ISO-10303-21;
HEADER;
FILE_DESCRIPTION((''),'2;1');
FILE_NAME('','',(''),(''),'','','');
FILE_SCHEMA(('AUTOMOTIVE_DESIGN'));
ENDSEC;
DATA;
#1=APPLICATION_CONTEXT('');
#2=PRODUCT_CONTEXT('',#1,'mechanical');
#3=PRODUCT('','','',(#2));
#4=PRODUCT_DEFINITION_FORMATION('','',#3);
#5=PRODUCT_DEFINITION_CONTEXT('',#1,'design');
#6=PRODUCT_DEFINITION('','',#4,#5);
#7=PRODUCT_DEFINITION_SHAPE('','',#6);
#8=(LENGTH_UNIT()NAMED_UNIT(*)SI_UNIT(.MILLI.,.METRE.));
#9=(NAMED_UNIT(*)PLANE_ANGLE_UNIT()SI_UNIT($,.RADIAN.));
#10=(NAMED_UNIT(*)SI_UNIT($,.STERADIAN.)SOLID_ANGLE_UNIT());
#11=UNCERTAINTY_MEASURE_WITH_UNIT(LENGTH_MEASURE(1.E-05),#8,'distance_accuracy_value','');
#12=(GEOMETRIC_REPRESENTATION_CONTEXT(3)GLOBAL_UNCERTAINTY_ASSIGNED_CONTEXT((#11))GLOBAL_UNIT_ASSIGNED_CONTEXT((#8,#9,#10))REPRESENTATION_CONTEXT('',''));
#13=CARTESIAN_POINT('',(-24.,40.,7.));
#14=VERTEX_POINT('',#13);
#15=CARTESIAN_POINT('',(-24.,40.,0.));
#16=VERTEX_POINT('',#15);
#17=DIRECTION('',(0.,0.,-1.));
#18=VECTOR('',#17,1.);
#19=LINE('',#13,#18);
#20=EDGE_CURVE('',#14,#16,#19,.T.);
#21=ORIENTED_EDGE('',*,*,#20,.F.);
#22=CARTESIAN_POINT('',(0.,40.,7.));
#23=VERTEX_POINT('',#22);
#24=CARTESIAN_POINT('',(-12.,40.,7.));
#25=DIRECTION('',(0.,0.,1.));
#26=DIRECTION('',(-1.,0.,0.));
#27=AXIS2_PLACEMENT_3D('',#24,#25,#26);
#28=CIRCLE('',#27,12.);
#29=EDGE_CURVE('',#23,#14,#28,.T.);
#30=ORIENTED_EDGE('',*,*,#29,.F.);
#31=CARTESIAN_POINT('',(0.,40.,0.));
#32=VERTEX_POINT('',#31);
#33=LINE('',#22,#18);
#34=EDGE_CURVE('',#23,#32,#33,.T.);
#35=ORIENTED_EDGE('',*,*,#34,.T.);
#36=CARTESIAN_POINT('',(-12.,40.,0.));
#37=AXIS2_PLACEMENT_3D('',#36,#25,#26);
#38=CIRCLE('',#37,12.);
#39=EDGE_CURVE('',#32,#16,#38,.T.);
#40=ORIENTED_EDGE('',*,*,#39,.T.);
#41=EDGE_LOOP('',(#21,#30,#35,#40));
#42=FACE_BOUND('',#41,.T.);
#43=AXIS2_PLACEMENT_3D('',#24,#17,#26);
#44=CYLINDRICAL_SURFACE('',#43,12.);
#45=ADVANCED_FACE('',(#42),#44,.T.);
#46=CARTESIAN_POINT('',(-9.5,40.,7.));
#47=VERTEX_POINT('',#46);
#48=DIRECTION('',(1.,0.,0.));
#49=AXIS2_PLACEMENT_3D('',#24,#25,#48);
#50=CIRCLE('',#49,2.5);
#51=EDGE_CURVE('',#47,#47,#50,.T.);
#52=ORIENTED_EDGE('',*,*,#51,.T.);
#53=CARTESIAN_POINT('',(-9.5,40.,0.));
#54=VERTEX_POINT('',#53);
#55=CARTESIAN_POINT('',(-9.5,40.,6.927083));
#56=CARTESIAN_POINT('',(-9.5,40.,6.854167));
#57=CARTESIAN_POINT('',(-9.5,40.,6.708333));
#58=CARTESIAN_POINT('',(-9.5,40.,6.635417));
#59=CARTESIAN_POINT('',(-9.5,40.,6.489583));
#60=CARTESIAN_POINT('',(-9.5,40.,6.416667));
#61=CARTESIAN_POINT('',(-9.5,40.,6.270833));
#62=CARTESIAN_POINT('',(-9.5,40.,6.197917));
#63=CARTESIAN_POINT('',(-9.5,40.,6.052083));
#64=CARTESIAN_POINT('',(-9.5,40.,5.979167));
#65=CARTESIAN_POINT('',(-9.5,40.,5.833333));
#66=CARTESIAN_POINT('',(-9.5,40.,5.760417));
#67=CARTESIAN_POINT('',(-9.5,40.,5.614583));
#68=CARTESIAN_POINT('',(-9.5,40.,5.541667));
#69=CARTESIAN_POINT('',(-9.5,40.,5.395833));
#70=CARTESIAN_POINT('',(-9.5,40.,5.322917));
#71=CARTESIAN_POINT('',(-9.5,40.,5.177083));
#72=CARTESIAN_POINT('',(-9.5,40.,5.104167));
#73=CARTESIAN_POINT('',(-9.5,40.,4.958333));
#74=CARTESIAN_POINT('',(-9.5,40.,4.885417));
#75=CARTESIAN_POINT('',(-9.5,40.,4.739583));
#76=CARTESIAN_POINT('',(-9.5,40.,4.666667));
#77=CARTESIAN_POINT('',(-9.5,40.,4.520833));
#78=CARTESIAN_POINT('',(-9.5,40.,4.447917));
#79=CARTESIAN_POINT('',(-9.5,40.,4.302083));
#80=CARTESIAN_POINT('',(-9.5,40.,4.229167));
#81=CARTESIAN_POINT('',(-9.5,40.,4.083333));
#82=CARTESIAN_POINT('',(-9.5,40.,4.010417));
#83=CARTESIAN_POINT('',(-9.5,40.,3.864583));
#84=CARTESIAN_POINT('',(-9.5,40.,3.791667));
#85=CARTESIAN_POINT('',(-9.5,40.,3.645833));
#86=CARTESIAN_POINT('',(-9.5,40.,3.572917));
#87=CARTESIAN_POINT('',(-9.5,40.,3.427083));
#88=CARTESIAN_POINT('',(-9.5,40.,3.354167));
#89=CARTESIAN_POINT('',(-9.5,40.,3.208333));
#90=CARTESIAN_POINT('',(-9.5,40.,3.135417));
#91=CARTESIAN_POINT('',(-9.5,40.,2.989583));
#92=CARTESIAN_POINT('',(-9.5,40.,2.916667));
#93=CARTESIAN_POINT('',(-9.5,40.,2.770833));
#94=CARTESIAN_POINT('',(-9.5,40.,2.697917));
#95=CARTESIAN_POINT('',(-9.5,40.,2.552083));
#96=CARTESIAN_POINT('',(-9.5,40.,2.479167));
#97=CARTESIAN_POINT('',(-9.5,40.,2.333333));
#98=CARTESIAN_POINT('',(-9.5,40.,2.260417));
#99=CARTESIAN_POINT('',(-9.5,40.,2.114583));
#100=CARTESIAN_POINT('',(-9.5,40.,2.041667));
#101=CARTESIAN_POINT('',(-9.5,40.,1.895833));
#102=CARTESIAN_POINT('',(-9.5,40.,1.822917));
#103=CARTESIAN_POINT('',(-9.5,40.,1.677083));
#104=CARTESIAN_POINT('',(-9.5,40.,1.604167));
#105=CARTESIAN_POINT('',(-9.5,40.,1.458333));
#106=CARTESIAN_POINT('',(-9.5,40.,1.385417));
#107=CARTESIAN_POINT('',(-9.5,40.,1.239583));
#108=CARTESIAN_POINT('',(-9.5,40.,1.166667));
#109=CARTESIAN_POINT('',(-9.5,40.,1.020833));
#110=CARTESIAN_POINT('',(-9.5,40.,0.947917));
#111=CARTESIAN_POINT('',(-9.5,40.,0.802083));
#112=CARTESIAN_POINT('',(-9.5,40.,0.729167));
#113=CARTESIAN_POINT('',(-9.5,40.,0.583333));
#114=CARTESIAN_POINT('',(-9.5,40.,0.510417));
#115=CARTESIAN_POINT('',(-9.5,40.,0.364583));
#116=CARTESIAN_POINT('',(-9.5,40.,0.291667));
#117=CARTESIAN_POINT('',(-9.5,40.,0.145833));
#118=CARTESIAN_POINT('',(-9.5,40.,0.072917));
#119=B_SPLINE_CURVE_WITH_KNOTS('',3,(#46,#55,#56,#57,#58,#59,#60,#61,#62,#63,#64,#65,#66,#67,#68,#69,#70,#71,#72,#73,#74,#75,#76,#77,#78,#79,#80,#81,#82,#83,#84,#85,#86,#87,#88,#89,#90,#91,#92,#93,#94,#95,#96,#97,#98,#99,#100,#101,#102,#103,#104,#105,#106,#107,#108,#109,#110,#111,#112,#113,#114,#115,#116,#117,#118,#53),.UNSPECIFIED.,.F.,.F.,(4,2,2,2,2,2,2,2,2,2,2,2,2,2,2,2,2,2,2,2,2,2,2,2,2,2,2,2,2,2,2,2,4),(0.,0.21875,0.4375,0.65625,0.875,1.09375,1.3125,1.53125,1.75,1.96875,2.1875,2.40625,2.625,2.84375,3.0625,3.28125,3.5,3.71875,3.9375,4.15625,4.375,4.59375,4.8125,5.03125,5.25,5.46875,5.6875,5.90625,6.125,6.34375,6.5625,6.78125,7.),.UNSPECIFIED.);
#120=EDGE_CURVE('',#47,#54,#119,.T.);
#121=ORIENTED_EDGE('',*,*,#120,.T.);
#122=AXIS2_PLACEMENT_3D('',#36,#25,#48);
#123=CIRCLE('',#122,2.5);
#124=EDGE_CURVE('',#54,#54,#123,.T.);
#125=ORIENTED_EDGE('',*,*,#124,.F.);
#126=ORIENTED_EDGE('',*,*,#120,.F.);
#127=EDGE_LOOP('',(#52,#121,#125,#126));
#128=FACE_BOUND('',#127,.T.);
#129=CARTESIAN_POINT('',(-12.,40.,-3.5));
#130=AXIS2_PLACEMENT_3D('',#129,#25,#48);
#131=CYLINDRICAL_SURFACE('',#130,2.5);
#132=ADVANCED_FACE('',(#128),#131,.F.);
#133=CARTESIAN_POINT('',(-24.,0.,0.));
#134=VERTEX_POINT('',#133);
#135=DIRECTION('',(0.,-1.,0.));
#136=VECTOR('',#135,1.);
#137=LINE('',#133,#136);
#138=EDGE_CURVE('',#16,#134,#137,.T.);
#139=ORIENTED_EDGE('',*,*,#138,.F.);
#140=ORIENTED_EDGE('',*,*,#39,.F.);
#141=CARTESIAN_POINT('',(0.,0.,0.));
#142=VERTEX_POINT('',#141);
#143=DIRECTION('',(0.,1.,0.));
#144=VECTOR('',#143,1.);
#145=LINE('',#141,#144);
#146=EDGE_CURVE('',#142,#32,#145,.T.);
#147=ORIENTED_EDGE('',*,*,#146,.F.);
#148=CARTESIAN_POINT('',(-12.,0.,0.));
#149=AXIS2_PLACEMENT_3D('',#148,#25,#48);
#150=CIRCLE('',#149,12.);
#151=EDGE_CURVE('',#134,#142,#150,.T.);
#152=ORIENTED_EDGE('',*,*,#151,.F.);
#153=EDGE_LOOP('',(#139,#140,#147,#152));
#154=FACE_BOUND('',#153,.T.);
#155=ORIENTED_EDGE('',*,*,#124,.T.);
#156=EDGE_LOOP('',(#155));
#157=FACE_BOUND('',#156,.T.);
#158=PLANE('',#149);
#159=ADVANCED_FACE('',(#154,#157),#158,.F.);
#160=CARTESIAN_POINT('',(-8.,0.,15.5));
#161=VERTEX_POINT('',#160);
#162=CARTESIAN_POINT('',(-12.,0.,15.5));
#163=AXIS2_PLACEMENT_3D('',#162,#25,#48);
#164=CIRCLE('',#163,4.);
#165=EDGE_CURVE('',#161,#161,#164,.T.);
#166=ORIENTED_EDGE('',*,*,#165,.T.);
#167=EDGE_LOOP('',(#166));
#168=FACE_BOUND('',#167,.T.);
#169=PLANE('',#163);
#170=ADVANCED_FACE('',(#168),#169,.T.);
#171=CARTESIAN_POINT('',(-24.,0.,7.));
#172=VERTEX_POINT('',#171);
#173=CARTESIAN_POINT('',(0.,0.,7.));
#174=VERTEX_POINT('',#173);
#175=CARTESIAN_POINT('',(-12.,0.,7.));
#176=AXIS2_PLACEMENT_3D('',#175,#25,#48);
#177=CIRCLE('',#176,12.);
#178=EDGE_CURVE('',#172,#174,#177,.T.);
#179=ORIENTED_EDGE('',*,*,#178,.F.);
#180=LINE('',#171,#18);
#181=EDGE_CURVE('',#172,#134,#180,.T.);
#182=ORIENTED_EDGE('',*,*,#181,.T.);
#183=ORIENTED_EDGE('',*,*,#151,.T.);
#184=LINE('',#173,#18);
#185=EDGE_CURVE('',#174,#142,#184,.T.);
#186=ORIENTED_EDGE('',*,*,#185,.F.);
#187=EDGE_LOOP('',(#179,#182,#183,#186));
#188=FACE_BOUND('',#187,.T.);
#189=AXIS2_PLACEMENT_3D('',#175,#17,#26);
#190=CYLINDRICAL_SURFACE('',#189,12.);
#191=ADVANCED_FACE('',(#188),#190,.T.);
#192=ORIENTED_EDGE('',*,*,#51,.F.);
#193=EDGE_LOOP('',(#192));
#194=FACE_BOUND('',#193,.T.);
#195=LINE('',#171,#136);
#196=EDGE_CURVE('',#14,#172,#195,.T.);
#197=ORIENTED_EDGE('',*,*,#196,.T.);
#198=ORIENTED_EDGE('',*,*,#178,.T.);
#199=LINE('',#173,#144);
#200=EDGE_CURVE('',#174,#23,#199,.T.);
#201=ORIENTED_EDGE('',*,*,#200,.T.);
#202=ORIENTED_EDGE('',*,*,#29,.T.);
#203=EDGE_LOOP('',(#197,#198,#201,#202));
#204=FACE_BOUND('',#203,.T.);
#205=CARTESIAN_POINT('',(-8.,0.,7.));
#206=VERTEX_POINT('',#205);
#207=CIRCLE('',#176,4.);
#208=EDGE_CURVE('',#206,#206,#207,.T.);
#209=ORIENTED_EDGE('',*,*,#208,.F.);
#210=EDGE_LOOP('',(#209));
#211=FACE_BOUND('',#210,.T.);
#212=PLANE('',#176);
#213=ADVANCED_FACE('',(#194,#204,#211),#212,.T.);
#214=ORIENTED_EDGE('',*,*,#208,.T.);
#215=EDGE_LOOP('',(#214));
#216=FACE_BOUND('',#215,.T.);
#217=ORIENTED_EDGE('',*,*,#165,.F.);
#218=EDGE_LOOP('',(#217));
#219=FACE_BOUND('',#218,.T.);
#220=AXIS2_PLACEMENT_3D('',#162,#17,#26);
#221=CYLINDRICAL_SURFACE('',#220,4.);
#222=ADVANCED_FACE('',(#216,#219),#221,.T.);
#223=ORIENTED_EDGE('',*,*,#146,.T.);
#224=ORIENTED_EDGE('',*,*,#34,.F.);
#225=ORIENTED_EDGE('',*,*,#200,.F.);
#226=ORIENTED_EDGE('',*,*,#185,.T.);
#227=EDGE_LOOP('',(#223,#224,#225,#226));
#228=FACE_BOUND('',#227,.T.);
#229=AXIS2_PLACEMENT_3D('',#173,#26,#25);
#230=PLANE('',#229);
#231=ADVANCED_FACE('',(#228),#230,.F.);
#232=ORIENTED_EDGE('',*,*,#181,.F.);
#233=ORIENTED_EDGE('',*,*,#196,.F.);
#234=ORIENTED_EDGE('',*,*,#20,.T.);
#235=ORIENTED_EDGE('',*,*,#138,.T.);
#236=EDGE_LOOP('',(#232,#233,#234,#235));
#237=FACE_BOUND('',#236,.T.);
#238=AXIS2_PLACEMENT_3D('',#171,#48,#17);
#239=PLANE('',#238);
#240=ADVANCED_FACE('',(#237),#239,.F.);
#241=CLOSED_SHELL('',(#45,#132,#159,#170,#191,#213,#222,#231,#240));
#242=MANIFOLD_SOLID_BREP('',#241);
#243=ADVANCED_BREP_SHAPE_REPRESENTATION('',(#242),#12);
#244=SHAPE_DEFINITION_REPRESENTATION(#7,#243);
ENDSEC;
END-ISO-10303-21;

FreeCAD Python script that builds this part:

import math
import FreeCAD as App
import Part
import Sketcher

V = App.Vector
Q = App.Units.Quantity

doc = App.newDocument("Part")
params = doc.addObject("Spreadsheet::Sheet", "Params")
for row, (alias, value) in enumerate([
    ("sketch1_radius", "12 mm"),
    ("sketch1_height", "40 mm"),
    ("pad1_length", "7 mm"),
    ("sketch2_diameter", "8 mm"),
    ("pad2_length", "8.5 mm"),
    ("sketch3_diameter", "5 mm"),
    ("pocket1_length", "10.5 mm"),
], start=1):
    params.set(f"A{row}", alias)
    params.set(f"B{row}", "=" + value)
    params.setAlias(f"B{row}", alias)

body = doc.addObject("PartDesign::Body", "Body")

sketch1 = doc.addObject("Sketcher::SketchObject", "Sketch")
body.addObject(sketch1)
sketch1.AttachmentSupport = (doc.XY_Plane, [""])
sketch1.MapMode = "FlatFace"
sketch1.addGeometry([
    Part.LineSegment(V(0, 0, 0), V(0, 40, 0)),
    Part.ArcOfCircle(Part.Circle(V(-12, 40, 0), V(0, 0, 1), 12), math.radians(0), math.radians(180)),
    Part.LineSegment(V(-24, 40, 0), V(-24, 0, 0)),
    Part.ArcOfCircle(Part.Circle(V(-12, 0, 0), V(0, 0, 1), 12), math.radians(180), math.radians(360)),
], False)
sketch1.addConstraint([
    Sketcher.Constraint("Tangent", 0, 2, 1, 1),
    Sketcher.Constraint("Tangent", 1, 2, 2, 1),
    Sketcher.Constraint("Tangent", 2, 2, 3, 1),
    Sketcher.Constraint("Tangent", 3, 2, 0, 1),
    Sketcher.Constraint("Vertical", 0),
    Sketcher.Constraint("Vertical", 2),
    Sketcher.Constraint("Coincident", 3, 2, -1, 1),
    Sketcher.Constraint("Radius", 1, Q("12 mm")),
    Sketcher.Constraint("DistanceY", 0, 1, 0, 2, Q("40 mm")),
])
sketch1.setExpression("Constraints[7]", "Params.sketch1_radius")
sketch1.setExpression("Constraints[8]", "Params.sketch1_height")
pad1 = doc.addObject("PartDesign::Pad", "Pad")
body.addObject(pad1)
pad1.Profile = sketch1
pad1.setExpression("Length", "Params.pad1_length")

sketch2 = doc.addObject("Sketcher::SketchObject", "Sketch001")
body.addObject(sketch2)
sketch2.AttachmentSupport = (doc.XY_Plane, [""])
sketch2.MapMode = "FlatFace"
sketch2.AttachmentOffset = App.Placement(V(0, 0, 7), App.Rotation())
sketch2.addGeometry(Part.Circle(V(-12, 0, 0), V(0, 0, 1), 4), False)
sketch2.addConstraint([
    Sketcher.Constraint("PointOnObject", 0, 3, -1),
    Sketcher.Constraint("Diameter", 0, Q("8 mm")),
    Sketcher.Constraint("DistanceX", 0, 3, -1, 1, Q("12 mm")),
])
sketch2.setExpression("Constraints[1]", "Params.sketch2_diameter")
pad2 = doc.addObject("PartDesign::Pad", "Pad001")
body.addObject(pad2)
pad2.Profile = sketch2
pad2.setExpression("Length", "Params.pad2_length")

sketch3 = doc.addObject("Sketcher::SketchObject", "Sketch002")
body.addObject(sketch3)
sketch3.AttachmentSupport = (doc.XY_Plane, [""])
sketch3.MapMode = "FlatFace"
sketch3.AttachmentOffset = App.Placement(V(0, 0, 7), App.Rotation())
sketch3.addGeometry(Part.Circle(V(-12, 40, 0), V(0, 0, 1), 2.5), False)
sketch3.addConstraint([
    Sketcher.Constraint("Diameter", 0, Q("5 mm")),
    Sketcher.Constraint("DistanceX", 0, 3, -1, 1, Q("12 mm")),
    Sketcher.Constraint("DistanceY", -1, 1, 0, 3, Q("40 mm")),
])
sketch3.setExpression("Constraints[0]", "Params.sketch3_diameter")
pocket1 = doc.addObject("PartDesign::Pocket", "Pocket")
body.addObject(pocket1)
pocket1.Profile = sketch3
pocket1.setExpression("Length", "Params.pocket1_length")

doc.recompute()
